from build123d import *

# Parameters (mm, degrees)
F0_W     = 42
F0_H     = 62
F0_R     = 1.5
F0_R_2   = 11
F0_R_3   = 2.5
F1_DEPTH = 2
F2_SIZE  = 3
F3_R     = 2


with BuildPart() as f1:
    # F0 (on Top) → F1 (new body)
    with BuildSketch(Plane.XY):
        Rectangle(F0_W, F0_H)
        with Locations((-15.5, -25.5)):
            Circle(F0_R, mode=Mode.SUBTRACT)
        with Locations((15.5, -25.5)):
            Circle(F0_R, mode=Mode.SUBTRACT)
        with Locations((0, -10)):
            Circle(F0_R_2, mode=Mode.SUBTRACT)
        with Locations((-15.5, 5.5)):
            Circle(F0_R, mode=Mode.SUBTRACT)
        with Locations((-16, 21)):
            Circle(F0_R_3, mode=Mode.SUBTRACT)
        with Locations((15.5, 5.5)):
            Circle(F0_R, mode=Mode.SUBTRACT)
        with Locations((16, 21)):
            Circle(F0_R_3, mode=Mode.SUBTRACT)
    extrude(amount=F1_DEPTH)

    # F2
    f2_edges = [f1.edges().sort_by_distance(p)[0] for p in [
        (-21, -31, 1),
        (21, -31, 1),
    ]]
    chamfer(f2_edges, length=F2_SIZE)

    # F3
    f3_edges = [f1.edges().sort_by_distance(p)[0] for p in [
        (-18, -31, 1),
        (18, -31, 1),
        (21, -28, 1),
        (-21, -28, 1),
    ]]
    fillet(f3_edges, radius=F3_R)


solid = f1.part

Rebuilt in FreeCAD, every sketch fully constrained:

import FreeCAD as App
import Part
import Sketcher

V = App.Vector


def edges_at(feature, points):
    """Names of the edges that pass closest to the given points."""
    edges = feature.Shape.Edges
    near = lambda p: min(range(len(edges)), key=lambda i: edges[i].distToShape(Part.Vertex(*p))[0])
    return sorted({f"Edge{near(p) + 1}" for p in points})

doc = App.newDocument("Part")
body = doc.addObject("PartDesign::Body", "Body")

sketch1 = doc.addObject("Sketcher::SketchObject", "Sketch")
body.addObject(sketch1)
sketch1.AttachmentSupport = (doc.XY_Plane, [""])
sketch1.MapMode = "FlatFace"
sketch1.addGeometry([
    Part.LineSegment(V(-21, 31, 0), V(-21, -31, 0)),
    Part.LineSegment(V(-21, -31, 0), V(21, -31, 0)),
    Part.LineSegment(V(21, -31, 0), V(21, 31, 0)),
    Part.LineSegment(V(21, 31, 0), V(-21, 31, 0)),
    Part.Circle(V(-15.5, -25.5, 0), V(0, 0, 1), 1.5),
    Part.Circle(V(15.5, -25.5, 0), V(0, 0, 1), 1.5),
    Part.Circle(V(0, -10, 0), V(0, 0, 1), 11),
    Part.Circle(V(-15.5, 5.5, 0), V(0, 0, 1), 1.5),
    Part.Circle(V(-16, 21, 0), V(0, 0, 1), 2.5),
    Part.Circle(V(15.5, 5.5, 0), V(0, 0, 1), 1.5),
    Part.Circle(V(16, 21, 0), V(0, 0, 1), 2.5),
], False)
sketch1.addConstraint([
    Sketcher.Constraint("Coincident", 0, 2, 1, 1),
    Sketcher.Constraint("Coincident", 1, 2, 2, 1),
    Sketcher.Constraint("Coincident", 2, 2, 3, 1),
    Sketcher.Constraint("Coincident", 3, 2, 0, 1),
    Sketcher.Constraint("Vertical", 0),
    Sketcher.Constraint("Horizontal", 1),
    Sketcher.Constraint("Vertical", 2),
    Sketcher.Constraint("Horizontal", 3),
    Sketcher.Constraint("Equal", 4, 5),
    Sketcher.Constraint("Equal", 5, 7),
    Sketcher.Constraint("Equal", 7, 9),
    Sketcher.Constraint("Equal", 8, 10),
    Sketcher.Constraint("Symmetric", 0, 2, 2, 2, -1, 1),
    Sketcher.Constraint("Symmetric", 4, 3, 5, 3, -2),
    Sketcher.Constraint("Symmetric", 7, 3, 9, 3, -2),
    Sketcher.Constraint("Symmetric", 8, 3, 10, 3, -2),
    Sketcher.Constraint("PointOnObject", 6, 3, -2),
    Sketcher.Constraint("Vertical", 4, 3, 7, 3),
    Sketcher.Constraint("Diameter", 4, 3.0),
    Sketcher.Constraint("Diameter", 6, 22.0),
    Sketcher.Constraint("Diameter", 8, 5.0),
    Sketcher.Constraint("DistanceX", 1, 1, 1, 2, 42.0),
    Sketcher.Constraint("DistanceY", 0, 2, 0, 1, 62.0),
    Sketcher.Constraint("DistanceY", 6, 3, -1, 1, 10.0),
    Sketcher.Constraint("DistanceX", 8, 3, -1, 1, 16.0),
    Sketcher.Constraint("DistanceY", -1, 1, 8, 3, 21.0),
    Sketcher.Constraint("DistanceX", 4, 3, 5, 3, 31.0),
    Sketcher.Constraint("DistanceY", 4, 3, 7, 3, 31.0),
    Sketcher.Constraint("DistanceY", 4, 3, -1, 1, 25.5),
])
pad1 = doc.addObject("PartDesign::Pad", "Pad")
body.addObject(pad1)
pad1.Profile = sketch1
pad1.Length = 2
doc.recompute()

chamfer = doc.addObject("PartDesign::Chamfer", "Chamfer")
body.addObject(chamfer)
chamfer.Base = (pad1, edges_at(pad1, [(-21, -31, 1), (21, -31, 1)]))
chamfer.Size = 3
doc.recompute()

fillet = doc.addObject("PartDesign::Fillet", "Fillet")
body.addObject(fillet)
fillet.Base = (chamfer, edges_at(chamfer, [
    (-18, -31, 1),
    (18, -31, 1),
    (21, -28, 1),
    (-21, -28, 1),
]))
fillet.Radius = 2

doc.recompute()
